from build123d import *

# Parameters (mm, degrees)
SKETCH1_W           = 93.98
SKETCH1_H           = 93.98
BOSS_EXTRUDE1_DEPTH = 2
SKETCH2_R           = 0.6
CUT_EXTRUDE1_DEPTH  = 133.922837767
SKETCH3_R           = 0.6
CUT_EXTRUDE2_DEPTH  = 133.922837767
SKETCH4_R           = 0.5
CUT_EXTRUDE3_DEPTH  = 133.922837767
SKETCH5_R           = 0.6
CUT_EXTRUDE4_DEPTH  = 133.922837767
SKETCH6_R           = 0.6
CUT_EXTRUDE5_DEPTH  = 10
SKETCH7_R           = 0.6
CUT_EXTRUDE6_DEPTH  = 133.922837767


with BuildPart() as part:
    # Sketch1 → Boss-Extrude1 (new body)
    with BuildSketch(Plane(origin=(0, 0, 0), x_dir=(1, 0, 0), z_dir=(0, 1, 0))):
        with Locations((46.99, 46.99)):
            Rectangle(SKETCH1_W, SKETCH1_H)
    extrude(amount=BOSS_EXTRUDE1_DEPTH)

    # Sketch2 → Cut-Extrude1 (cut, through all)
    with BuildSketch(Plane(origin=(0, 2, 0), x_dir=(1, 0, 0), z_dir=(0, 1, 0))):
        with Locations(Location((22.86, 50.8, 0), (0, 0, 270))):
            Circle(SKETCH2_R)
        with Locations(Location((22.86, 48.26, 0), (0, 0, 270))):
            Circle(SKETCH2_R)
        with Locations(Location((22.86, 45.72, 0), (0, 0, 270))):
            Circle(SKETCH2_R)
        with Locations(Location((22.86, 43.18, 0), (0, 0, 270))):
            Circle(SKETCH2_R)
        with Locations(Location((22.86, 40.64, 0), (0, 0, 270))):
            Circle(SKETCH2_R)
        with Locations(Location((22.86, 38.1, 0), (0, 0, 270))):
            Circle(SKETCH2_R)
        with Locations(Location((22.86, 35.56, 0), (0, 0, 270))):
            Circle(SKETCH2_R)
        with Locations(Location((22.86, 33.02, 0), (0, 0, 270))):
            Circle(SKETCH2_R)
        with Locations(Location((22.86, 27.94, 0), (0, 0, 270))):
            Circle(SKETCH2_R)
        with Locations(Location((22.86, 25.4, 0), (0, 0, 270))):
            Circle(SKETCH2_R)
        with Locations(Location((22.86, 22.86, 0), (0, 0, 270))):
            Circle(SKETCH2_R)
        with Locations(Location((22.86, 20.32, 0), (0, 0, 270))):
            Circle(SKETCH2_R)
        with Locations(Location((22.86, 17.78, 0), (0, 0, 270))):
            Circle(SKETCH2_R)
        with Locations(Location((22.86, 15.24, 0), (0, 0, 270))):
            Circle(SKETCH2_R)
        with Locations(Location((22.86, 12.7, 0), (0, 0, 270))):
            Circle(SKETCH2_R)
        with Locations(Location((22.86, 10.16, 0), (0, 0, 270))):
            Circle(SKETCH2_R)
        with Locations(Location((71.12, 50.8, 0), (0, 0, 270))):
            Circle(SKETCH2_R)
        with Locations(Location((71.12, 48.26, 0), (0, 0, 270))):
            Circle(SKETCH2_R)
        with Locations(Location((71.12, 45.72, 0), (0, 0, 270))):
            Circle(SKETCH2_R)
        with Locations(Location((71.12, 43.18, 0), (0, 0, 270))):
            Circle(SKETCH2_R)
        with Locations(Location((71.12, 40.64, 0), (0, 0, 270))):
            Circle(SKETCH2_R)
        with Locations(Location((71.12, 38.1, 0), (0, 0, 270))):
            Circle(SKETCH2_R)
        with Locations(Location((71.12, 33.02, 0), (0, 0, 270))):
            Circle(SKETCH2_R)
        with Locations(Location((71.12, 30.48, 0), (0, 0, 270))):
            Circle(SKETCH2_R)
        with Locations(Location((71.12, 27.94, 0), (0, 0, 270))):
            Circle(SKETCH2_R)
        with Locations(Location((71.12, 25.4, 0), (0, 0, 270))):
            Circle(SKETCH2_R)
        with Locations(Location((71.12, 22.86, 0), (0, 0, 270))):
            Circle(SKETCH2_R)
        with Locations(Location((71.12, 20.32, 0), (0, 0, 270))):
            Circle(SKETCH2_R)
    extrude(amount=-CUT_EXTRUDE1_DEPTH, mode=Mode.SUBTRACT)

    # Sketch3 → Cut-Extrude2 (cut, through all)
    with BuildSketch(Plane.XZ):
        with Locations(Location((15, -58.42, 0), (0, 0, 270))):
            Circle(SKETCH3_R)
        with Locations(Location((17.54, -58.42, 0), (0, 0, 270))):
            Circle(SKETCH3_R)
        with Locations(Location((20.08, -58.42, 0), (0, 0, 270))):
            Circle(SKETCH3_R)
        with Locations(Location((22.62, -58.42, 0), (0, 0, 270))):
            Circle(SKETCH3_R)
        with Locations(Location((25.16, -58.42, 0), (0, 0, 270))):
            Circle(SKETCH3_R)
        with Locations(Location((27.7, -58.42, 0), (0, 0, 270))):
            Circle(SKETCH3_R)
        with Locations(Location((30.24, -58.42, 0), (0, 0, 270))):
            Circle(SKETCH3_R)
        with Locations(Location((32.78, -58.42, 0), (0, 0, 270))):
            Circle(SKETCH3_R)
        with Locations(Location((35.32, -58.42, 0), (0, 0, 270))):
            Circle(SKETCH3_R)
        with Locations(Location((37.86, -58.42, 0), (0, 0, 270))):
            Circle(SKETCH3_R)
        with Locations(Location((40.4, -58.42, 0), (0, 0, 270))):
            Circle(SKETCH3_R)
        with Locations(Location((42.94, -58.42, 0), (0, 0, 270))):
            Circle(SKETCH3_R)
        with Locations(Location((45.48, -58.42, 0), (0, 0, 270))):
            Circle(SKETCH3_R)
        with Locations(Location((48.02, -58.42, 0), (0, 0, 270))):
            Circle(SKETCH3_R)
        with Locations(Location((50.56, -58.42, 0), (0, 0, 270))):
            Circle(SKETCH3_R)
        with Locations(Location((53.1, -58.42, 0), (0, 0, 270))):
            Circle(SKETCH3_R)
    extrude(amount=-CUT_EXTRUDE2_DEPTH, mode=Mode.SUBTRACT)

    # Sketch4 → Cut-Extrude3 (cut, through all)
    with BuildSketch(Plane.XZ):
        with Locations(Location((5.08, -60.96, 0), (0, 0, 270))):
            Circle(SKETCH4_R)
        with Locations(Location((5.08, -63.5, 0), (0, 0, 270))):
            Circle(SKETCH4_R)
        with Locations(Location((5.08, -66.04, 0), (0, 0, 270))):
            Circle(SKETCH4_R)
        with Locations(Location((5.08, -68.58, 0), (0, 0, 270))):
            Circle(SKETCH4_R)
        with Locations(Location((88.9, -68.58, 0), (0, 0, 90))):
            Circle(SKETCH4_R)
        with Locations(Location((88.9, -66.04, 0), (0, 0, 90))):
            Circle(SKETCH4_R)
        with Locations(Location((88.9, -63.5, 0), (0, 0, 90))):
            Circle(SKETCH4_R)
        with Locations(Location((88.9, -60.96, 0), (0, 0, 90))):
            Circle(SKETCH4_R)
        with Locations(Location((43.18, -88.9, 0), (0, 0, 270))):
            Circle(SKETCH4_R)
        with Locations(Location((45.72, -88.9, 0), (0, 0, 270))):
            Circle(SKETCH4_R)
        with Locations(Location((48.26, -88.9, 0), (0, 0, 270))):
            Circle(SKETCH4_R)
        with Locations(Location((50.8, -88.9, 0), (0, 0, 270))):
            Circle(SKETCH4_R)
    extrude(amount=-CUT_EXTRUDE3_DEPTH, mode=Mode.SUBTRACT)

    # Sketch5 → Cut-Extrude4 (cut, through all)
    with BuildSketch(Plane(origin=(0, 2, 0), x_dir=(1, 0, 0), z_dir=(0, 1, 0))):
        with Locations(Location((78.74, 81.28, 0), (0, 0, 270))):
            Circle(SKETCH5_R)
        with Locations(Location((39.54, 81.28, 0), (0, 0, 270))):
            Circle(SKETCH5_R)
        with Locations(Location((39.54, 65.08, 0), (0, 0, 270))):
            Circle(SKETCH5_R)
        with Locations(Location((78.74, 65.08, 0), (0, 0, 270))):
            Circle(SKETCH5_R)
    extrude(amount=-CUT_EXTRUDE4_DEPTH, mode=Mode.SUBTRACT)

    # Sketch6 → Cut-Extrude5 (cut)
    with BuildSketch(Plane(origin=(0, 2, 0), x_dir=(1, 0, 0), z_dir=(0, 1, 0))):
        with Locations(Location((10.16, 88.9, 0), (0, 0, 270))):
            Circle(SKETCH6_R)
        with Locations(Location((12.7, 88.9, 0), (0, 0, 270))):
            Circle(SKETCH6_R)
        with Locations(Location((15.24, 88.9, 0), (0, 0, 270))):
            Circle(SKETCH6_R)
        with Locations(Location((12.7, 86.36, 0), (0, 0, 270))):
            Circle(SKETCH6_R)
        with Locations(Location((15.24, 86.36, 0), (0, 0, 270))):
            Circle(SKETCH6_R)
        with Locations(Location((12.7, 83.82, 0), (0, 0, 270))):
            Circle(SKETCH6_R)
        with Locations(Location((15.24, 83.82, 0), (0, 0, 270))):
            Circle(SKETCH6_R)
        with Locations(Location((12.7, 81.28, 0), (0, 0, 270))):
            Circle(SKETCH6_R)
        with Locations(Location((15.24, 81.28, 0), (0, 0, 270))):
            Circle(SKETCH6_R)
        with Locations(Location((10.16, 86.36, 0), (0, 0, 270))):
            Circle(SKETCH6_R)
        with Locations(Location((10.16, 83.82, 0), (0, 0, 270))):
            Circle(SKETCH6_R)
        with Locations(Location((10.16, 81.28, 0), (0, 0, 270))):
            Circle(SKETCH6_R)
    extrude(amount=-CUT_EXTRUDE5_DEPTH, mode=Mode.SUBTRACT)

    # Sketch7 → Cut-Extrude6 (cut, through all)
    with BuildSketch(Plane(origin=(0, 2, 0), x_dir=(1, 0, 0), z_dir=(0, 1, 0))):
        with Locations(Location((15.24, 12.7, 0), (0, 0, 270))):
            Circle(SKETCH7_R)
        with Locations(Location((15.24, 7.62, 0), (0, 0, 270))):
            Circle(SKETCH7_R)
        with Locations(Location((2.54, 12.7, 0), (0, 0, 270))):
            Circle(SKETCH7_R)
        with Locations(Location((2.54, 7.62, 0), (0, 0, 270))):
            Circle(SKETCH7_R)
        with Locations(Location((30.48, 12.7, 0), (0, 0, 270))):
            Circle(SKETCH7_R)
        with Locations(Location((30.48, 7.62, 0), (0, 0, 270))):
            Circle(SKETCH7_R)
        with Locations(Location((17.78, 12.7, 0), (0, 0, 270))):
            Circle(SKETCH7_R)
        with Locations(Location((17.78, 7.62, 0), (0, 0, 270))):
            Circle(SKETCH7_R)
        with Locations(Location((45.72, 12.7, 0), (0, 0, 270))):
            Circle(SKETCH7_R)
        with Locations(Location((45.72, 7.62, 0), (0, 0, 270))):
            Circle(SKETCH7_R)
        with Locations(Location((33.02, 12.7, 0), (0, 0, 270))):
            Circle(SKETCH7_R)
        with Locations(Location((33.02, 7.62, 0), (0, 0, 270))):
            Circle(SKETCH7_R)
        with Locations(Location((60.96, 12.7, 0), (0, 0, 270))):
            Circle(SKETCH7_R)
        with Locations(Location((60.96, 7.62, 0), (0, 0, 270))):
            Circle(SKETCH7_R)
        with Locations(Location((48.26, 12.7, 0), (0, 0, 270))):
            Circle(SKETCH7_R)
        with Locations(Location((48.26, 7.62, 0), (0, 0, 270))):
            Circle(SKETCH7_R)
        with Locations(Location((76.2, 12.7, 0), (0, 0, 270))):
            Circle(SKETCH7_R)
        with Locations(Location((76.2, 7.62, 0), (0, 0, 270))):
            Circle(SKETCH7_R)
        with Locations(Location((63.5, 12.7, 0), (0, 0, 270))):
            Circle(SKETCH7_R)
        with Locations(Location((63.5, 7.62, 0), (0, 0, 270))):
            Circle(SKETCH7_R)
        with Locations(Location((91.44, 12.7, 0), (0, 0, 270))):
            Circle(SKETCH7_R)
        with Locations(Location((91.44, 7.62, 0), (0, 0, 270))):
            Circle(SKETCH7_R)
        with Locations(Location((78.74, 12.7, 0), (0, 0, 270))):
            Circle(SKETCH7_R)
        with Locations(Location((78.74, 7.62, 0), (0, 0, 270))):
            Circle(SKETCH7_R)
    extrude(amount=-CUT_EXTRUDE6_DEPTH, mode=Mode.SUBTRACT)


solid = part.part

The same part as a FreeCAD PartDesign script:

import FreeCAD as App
import Part
import Sketcher

V = App.Vector

doc = App.newDocument("Part")
body = doc.addObject("PartDesign::Body", "Body")

# Sketch on XZ plane
sketch1 = body.newObject("Sketcher::SketchObject", "Sketch")
sketch1.AttachmentSupport = (doc.getObject("XZ_Plane"), [""])
sketch1.MapMode = "FlatFace"
sketch1.addGeometry(Part.LineSegment(V(0, -93.98, 0), V(0, 0, 0)), False)
sketch1.addGeometry(Part.LineSegment(V(0, 0, 0), V(93.98, 0, 0)), False)
sketch1.addGeometry(Part.LineSegment(V(93.98, 0, 0), V(93.98, -93.98, 0)), False)
sketch1.addGeometry(Part.LineSegment(V(93.98, -93.98, 0), V(0, -93.98, 0)), False)
sketch1.addConstraint(Sketcher.Constraint("Coincident", 0, 2, 1, 1))
sketch1.addConstraint(Sketcher.Constraint("Coincident", 1, 2, 2, 1))
sketch1.addConstraint(Sketcher.Constraint("Coincident", 2, 2, 3, 1))
sketch1.addConstraint(Sketcher.Constraint("Coincident", 3, 2, 0, 1))
sketch1.addConstraint(Sketcher.Constraint("Vertical", 0))
sketch1.addConstraint(Sketcher.Constraint("Horizontal", 1))
sketch1.addConstraint(Sketcher.Constraint("Vertical", 2))
sketch1.addConstraint(Sketcher.Constraint("Horizontal", 3))
sketch1.addConstraint(Sketcher.Constraint("Coincident", 0, 2, -1, 1))
sketch1.addConstraint(Sketcher.Constraint("Equal", 3, 0))
sketch1.addConstraint(Sketcher.Constraint("DistanceX", 1, 1, 1, 2, 93.98))
pad1 = body.newObject("PartDesign::Pad", "Pad")
pad1.Profile = sketch1
pad1.Length = 2
pad1.Reversed = True

# Sketch on XZ plane
sketch2 = body.newObject("Sketcher::SketchObject", "Sketch001")
sketch2.AttachmentSupport = (doc.getObject("XZ_Plane"), [""])
sketch2.MapMode = "FlatFace"
sketch2.AttachmentOffset = App.Placement(V(0, 0, -2), App.Rotation())
sketch2.addGeometry(Part.Circle(V(22.86, -50.8, 0), V(0, 0, 1), 0.6), False)
sketch2.addGeometry(Part.Circle(V(22.86, -48.26, 0), V(0, 0, 1), 0.6), False)
sketch2.addGeometry(Part.Circle(V(22.86, -45.72, 0), V(0, 0, 1), 0.6), False)
sketch2.addGeometry(Part.Circle(V(22.86, -43.18, 0), V(0, 0, 1), 0.6), False)
sketch2.addGeometry(Part.Circle(V(22.86, -40.64, 0), V(0, 0, 1), 0.6), False)
sketch2.addGeometry(Part.Circle(V(22.86, -38.1, 0), V(0, 0, 1), 0.6), False)
sketch2.addGeometry(Part.Circle(V(22.86, -35.56, 0), V(0, 0, 1), 0.6), False)
sketch2.addGeometry(Part.Circle(V(22.86, -33.02, 0), V(0, 0, 1), 0.6), False)
sketch2.addGeometry(Part.Circle(V(22.86, -27.94, 0), V(0, 0, 1), 0.6), False)
sketch2.addGeometry(Part.Circle(V(22.86, -25.4, 0), V(0, 0, 1), 0.6), False)
sketch2.addGeometry(Part.Circle(V(22.86, -22.86, 0), V(0, 0, 1), 0.6), False)
sketch2.addGeometry(Part.Circle(V(22.86, -20.32, 0), V(0, 0, 1), 0.6), False)
sketch2.addGeometry(Part.Circle(V(22.86, -17.78, 0), V(0, 0, 1), 0.6), False)
sketch2.addGeometry(Part.Circle(V(22.86, -15.24, 0), V(0, 0, 1), 0.6), False)
sketch2.addGeometry(Part.Circle(V(22.86, -12.7, 0), V(0, 0, 1), 0.6), False)
sketch2.addGeometry(Part.Circle(V(22.86, -10.16, 0), V(0, 0, 1), 0.6), False)
sketch2.addGeometry(Part.Circle(V(71.12, -50.8, 0), V(0, 0, 1), 0.6), False)
sketch2.addGeometry(Part.Circle(V(71.12, -48.26, 0), V(0, 0, 1), 0.6), False)
sketch2.addGeometry(Part.Circle(V(71.12, -45.72, 0), V(0, 0, 1), 0.6), False)
sketch2.addGeometry(Part.Circle(V(71.12, -43.18, 0), V(0, 0, 1), 0.6), False)
sketch2.addGeometry(Part.Circle(V(71.12, -40.64, 0), V(0, 0, 1), 0.6), False)
sketch2.addGeometry(Part.Circle(V(71.12, -38.1, 0), V(0, 0, 1), 0.6), False)
sketch2.addGeometry(Part.Circle(V(71.12, -33.02, 0), V(0, 0, 1), 0.6), False)
sketch2.addGeometry(Part.Circle(V(71.12, -30.48, 0), V(0, 0, 1), 0.6), False)
sketch2.addGeometry(Part.Circle(V(71.12, -27.94, 0), V(0, 0, 1), 0.6), False)
sketch2.addGeometry(Part.Circle(V(71.12, -25.4, 0), V(0, 0, 1), 0.6), False)
sketch2.addGeometry(Part.Circle(V(71.12, -22.86, 0), V(0, 0, 1), 0.6), False)
sketch2.addGeometry(Part.Circle(V(71.12, -20.32, 0), V(0, 0, 1), 0.6), False)
sketch2.addConstraint(Sketcher.Constraint("Equal", 0, 1))
sketch2.addConstraint(Sketcher.Constraint("Equal", 1, 2))
sketch2.addConstraint(Sketcher.Constraint("Equal", 2, 3))
sketch2.addConstraint(Sketcher.Constraint("Equal", 3, 4))
sketch2.addConstraint(Sketcher.Constraint("Equal", 4, 5))
sketch2.addConstraint(Sketcher.Constraint("Equal", 5, 6))
sketch2.addConstraint(Sketcher.Constraint("Equal", 6, 7))
sketch2.addConstraint(Sketcher.Constraint("Equal", 7, 8))
sketch2.addConstraint(Sketcher.Constraint("Equal", 8, 9))
sketch2.addConstraint(Sketcher.Constraint("Equal", 9, 10))
sketch2.addConstraint(Sketcher.Constraint("Equal", 10, 11))
sketch2.addConstraint(Sketcher.Constraint("Equal", 11, 12))
sketch2.addConstraint(Sketcher.Constraint("Equal", 12, 13))
sketch2.addConstraint(Sketcher.Constraint("Equal", 13, 14))
sketch2.addConstraint(Sketcher.Constraint("Equal", 14, 15))
sketch2.addConstraint(Sketcher.Constraint("Equal", 15, 16))
sketch2.addConstraint(Sketcher.Constraint("Equal", 16, 17))
sketch2.addConstraint(Sketcher.Constraint("Equal", 17, 18))
sketch2.addConstraint(Sketcher.Constraint("Equal", 18, 19))
sketch2.addConstraint(Sketcher.Constraint("Equal", 19, 20))
sketch2.addConstraint(Sketcher.Constraint("Equal", 20, 21))
sketch2.addConstraint(Sketcher.Constraint("Equal", 21, 22))
sketch2.addConstraint(Sketcher.Constraint("Equal", 22, 23))
sketch2.addConstraint(Sketcher.Constraint("Equal", 23, 24))
sketch2.addConstraint(Sketcher.Constraint("Equal", 24, 25))
sketch2.addConstraint(Sketcher.Constraint("Equal", 25, 26))
sketch2.addConstraint(Sketcher.Constraint("Equal", 26, 27))
sketch2.addConstraint(Sketcher.Constraint("Horizontal", 0, 3, 16, 3))
sketch2.addConstraint(Sketcher.Constraint("Horizontal", 1, 3, 17, 3))
sketch2.addConstraint(Sketcher.Constraint("Horizontal", 2, 3, 18, 3))
sketch2.addConstraint(Sketcher.Constraint("Horizontal", 3, 3, 19, 3))
sketch2.addConstraint(Sketcher.Constraint("Horizontal", 4, 3, 20, 3))
sketch2.addConstraint(Sketcher.Constraint("Horizontal", 5, 3, 21, 3))
sketch2.addConstraint(Sketcher.Constraint("Horizontal", 7, 3, 22, 3))
sketch2.addConstraint(Sketcher.Constraint("Horizontal", 8, 3, 24, 3))
sketch2.addConstraint(Sketcher.Constraint("Horizontal", 9, 3, 25, 3))
sketch2.addConstraint(Sketcher.Constraint("Horizontal", 10, 3, 26, 3))
sketch2.addConstraint(Sketcher.Constraint("Horizontal", 11, 3, 27, 3))
sketch2.addConstraint(Sketcher.Constraint("Vertical", 0, 3, 1, 3))
sketch2.addConstraint(Sketcher.Constraint("Vertical", 1, 3, 2, 3))
sketch2.addConstraint(Sketcher.Constraint("Vertical", 2, 3, 3, 3))
sketch2.addConstraint(Sketcher.Constraint("Vertical", 3, 3, 4, 3))
sketch2.addConstraint(Sketcher.Constraint("Vertical", 4, 3, 5, 3))
sketch2.addConstraint(Sketcher.Constraint("Vertical", 5, 3, 6, 3))
sketch2.addConstraint(Sketcher.Constraint("Vertical", 6, 3, 7, 3))
sketch2.addConstraint(Sketcher.Constraint("Vertical", 7, 3, 8, 3))
sketch2.addConstraint(Sketcher.Constraint("Vertical", 8, 3, 9, 3))
sketch2.addConstraint(Sketcher.Constraint("Vertical", 9, 3, 10, 3))
sketch2.addConstraint(Sketcher.Constraint("Vertical", 10, 3, 11, 3))
sketch2.addConstraint(Sketcher.Constraint("Vertical", 11, 3, 12, 3))
sketch2.addConstraint(Sketcher.Constraint("Vertical", 12, 3, 13, 3))
sketch2.addConstraint(Sketcher.Constraint("Vertical", 13, 3, 14, 3))
sketch2.addConstraint(Sketcher.Constraint("Vertical", 14, 3, 15, 3))
sketch2.addConstraint(Sketcher.Constraint("Vertical", 16, 3, 17, 3))
sketch2.addConstraint(Sketcher.Constraint("Vertical", 17, 3, 18, 3))
sketch2.addConstraint(Sketcher.Constraint("Vertical", 18, 3, 19, 3))
sketch2.addConstraint(Sketcher.Constraint("Vertical", 19, 3, 20, 3))
sketch2.addConstraint(Sketcher.Constraint("Vertical", 20, 3, 21, 3))
sketch2.addConstraint(Sketcher.Constraint("Vertical", 21, 3, 22, 3))
sketch2.addConstraint(Sketcher.Constraint("Vertical", 22, 3, 23, 3))
sketch2.addConstraint(Sketcher.Constraint("Vertical", 23, 3, 24, 3))
sketch2.addConstraint(Sketcher.Constraint("Vertical", 24, 3, 25, 3))
sketch2.addConstraint(Sketcher.Constraint("Vertical", 25, 3, 26, 3))
sketch2.addConstraint(Sketcher.Constraint("Vertical", 26, 3, 27, 3))
sketch2.addConstraint(Sketcher.Constraint("Diameter", 0, 1.2))
sketch2.addConstraint(Sketcher.Constraint("DistanceY", 0, 3, -1, 1, 50.8))
sketch2.addConstraint(Sketcher.Constraint("DistanceY", 5, 3, -1, 1, 38.1))
sketch2.addConstraint(Sketcher.Constraint("DistanceY", 9, 3, -1, 1, 25.4))
sketch2.addConstraint(Sketcher.Constraint("DistanceY", 14, 3, -1, 1, 12.7))
sketch2.addConstraint(Sketcher.Constraint("DistanceY", 1, 3, 6, 3, 12.7))
sketch2.addConstraint(Sketcher.Constraint("DistanceY", 2, 3, 7, 3, 12.7))
sketch2.addConstraint(Sketcher.Constraint("DistanceY", 4, 3, 8, 3, 12.7))
sketch2.addConstraint(Sketcher.Constraint("DistanceY", 6, 3, 10, 3, 12.7))
sketch2.addConstraint(Sketcher.Constraint("DistanceY", 7, 3, 11, 3, 12.7))
sketch2.addConstraint(Sketcher.Constraint("DistanceY", 8, 3, 13, 3, 12.7))
sketch2.addConstraint(Sketcher.Constraint("DistanceY", 10, 3, 15, 3, 12.7))
sketch2.addConstraint(Sketcher.Constraint("DistanceY", 19, 3, 23, 3, 12.7))
sketch2.addConstraint(Sketcher.Constraint("DistanceX", -1, 1, 0, 3, 22.86))
sketch2.addConstraint(Sketcher.Constraint("DistanceY", 1, 3, -1, 1, 48.26))
sketch2.addConstraint(Sketcher.Constraint("DistanceY", 2, 3, -1, 1, 45.72))
sketch2.addConstraint(Sketcher.Constraint("DistanceY", 3, 3, -1, 1, 43.18))
sketch2.addConstraint(Sketcher.Constraint("DistanceY", 4, 3, -1, 1, 40.64))
sketch2.addConstraint(Sketcher.Constraint("DistanceY", 12, 3, -1, 1, 17.78))
sketch2.addConstraint(Sketcher.Constraint("DistanceX", -1, 1, 16, 3, 71.12))
pocket1 = body.newObject("PartDesign::Pocket", "Pocket")
pocket1.Profile = sketch2
pocket1.Type = "ThroughAll"
pocket1.Reversed = True

# Sketch on XZ plane
sketch3 = body.newObject("Sketcher::SketchObject", "Sketch002")
sketch3.AttachmentSupport = (doc.getObject("XZ_Plane"), [""])
sketch3.MapMode = "FlatFace"
sketch3.addGeometry(Part.Circle(V(15, -58.42, 0), V(0, 0, 1), 0.6), False)
sketch3.addGeometry(Part.Circle(V(17.54, -58.42, 0), V(0, 0, 1), 0.6), False)
sketch3.addGeometry(Part.Circle(V(20.08, -58.42, 0), V(0, 0, 1), 0.6), False)
sketch3.addGeometry(Part.Circle(V(22.62, -58.42, 0), V(0, 0, 1), 0.6), False)
sketch3.addGeometry(Part.Circle(V(25.16, -58.42, 0), V(0, 0, 1), 0.6), False)
sketch3.addGeometry(Part.Circle(V(27.7, -58.42, 0), V(0, 0, 1), 0.6), False)
sketch3.addGeometry(Part.Circle(V(30.24, -58.42, 0), V(0, 0, 1), 0.6), False)
sketch3.addGeometry(Part.Circle(V(32.78, -58.42, 0), V(0, 0, 1), 0.6), False)
sketch3.addGeometry(Part.Circle(V(35.32, -58.42, 0), V(0, 0, 1), 0.6), False)
sketch3.addGeometry(Part.Circle(V(37.86, -58.42, 0), V(0, 0, 1), 0.6), False)
sketch3.addGeometry(Part.Circle(V(40.4, -58.42, 0), V(0, 0, 1), 0.6), False)
sketch3.addGeometry(Part.Circle(V(42.94, -58.42, 0), V(0, 0, 1), 0.6), False)
sketch3.addGeometry(Part.Circle(V(45.48, -58.42, 0), V(0, 0, 1), 0.6), False)
sketch3.addGeometry(Part.Circle(V(48.02, -58.42, 0), V(0, 0, 1), 0.6), False)
sketch3.addGeometry(Part.Circle(V(50.56, -58.42, 0), V(0, 0, 1), 0.6), False)
sketch3.addGeometry(Part.Circle(V(53.1, -58.42, 0), V(0, 0, 1), 0.6), False)
sketch3.addConstraint(Sketcher.Constraint("Equal", 0, 1))
sketch3.addConstraint(Sketcher.Constraint("Equal", 1, 2))
sketch3.addConstraint(Sketcher.Constraint("Equal", 2, 3))
sketch3.addConstraint(Sketcher.Constraint("Equal", 3, 4))
sketch3.addConstraint(Sketcher.Constraint("Equal", 4, 5))
sketch3.addConstraint(Sketcher.Constraint("Equal", 5, 6))
sketch3.addConstraint(Sketcher.Constraint("Equal", 6, 7))
sketch3.addConstraint(Sketcher.Constraint("Equal", 7, 8))
sketch3.addConstraint(Sketcher.Constraint("Equal", 8, 9))
sketch3.addConstraint(Sketcher.Constraint("Equal", 9, 10))
sketch3.addConstraint(Sketcher.Constraint("Equal", 10, 11))
sketch3.addConstraint(Sketcher.Constraint("Equal", 11, 12))
sketch3.addConstraint(Sketcher.Constraint("Equal", 12, 13))
sketch3.addConstraint(Sketcher.Constraint("Equal", 13, 14))
sketch3.addConstraint(Sketcher.Constraint("Equal", 14, 15))
sketch3.addConstraint(Sketcher.Constraint("Horizontal", 0, 3, 1, 3))
sketch3.addConstraint(Sketcher.Constraint("Horizontal", 1, 3, 2, 3))
sketch3.addConstraint(Sketcher.Constraint("Horizontal", 2, 3, 3, 3))
sketch3.addConstraint(Sketcher.Constraint("Horizontal", 3, 3, 4, 3))
sketch3.addConstraint(Sketcher.Constraint("Horizontal", 4, 3, 5, 3))
sketch3.addConstraint(Sketcher.Constraint("Horizontal", 5, 3, 6, 3))
sketch3.addConstraint(Sketcher.Constraint("Horizontal", 6, 3, 7, 3))
sketch3.addConstraint(Sketcher.Constraint("Horizontal", 7, 3, 8, 3))
sketch3.addConstraint(Sketcher.Constraint("Horizontal", 8, 3, 9, 3))
sketch3.addConstraint(Sketcher.Constraint("Horizontal", 9, 3, 10, 3))
sketch3.addConstraint(Sketcher.Constraint("Horizontal", 10, 3, 11, 3))
sketch3.addConstraint(Sketcher.Constraint("Horizontal", 11, 3, 12, 3))
sketch3.addConstraint(Sketcher.Constraint("Horizontal", 12, 3, 13, 3))
sketch3.addConstraint(Sketcher.Constraint("Horizontal", 13, 3, 14, 3))
sketch3.addConstraint(Sketcher.Constraint("Horizontal", 14, 3, 15, 3))
sketch3.addConstraint(Sketcher.Constraint("Diameter", 0, 1.2))
sketch3.addConstraint(Sketcher.Constraint("DistanceX", -1, 1, 0, 3, 15.0))
sketch3.addConstraint(Sketcher.Constraint("DistanceX", -1, 1, 5, 3, 27.7))
sketch3.addConstraint(Sketcher.Constraint("DistanceX", -1, 1, 10, 3, 40.4))
sketch3.addConstraint(Sketcher.Constraint("DistanceX", -1, 1, 15, 3, 53.1))
sketch3.addConstraint(Sketcher.Constraint("DistanceX", 1, 3, 6, 3, 12.7))
sketch3.addConstraint(Sketcher.Constraint("DistanceX", 2, 3, 7, 3, 12.7))
sketch3.addConstraint(Sketcher.Constraint("DistanceX", 3, 3, 8, 3, 12.7))
sketch3.addConstraint(Sketcher.Constraint("DistanceX", 4, 3, 9, 3, 12.7))
sketch3.addConstraint(Sketcher.Constraint("DistanceX", 6, 3, 11, 3, 12.7))
sketch3.addConstraint(Sketcher.Constraint("DistanceX", 7, 3, 12, 3, 12.7))
sketch3.addConstraint(Sketcher.Constraint("DistanceX", 8, 3, 13, 3, 12.7))
sketch3.addConstraint(Sketcher.Constraint("DistanceX", 9, 3, 14, 3, 12.7))
sketch3.addConstraint(Sketcher.Constraint("DistanceY", 0, 3, -1, 1, 58.42))
sketch3.addConstraint(Sketcher.Constraint("DistanceX", -1, 1, 1, 3, 17.54))
sketch3.addConstraint(Sketcher.Constraint("DistanceX", -1, 1, 2, 3, 20.08))
sketch3.addConstraint(Sketcher.Constraint("DistanceX", -1, 1, 3, 3, 22.62))
sketch3.addConstraint(Sketcher.Constraint("DistanceX", -1, 1, 4, 3, 25.16))
pocket2 = body.newObject("PartDesign::Pocket", "Pocket001")
pocket2.Profile = sketch3
pocket2.Type = "ThroughAll"

# Sketch on XZ plane
sketch4 = body.newObject("Sketcher::SketchObject", "Sketch003")
sketch4.AttachmentSupport = (doc.getObject("XZ_Plane"), [""])
sketch4.MapMode = "FlatFace"
sketch4.addGeometry(Part.Circle(V(5.08, -60.96, 0), V(0, 0, 1), 0.5), False)
sketch4.addGeometry(Part.Circle(V(5.08, -63.5, 0), V(0, 0, 1), 0.5), False)
sketch4.addGeometry(Part.Circle(V(5.08, -66.04, 0), V(0, 0, 1), 0.5), False)
sketch4.addGeometry(Part.Circle(V(5.08, -68.58, 0), V(0, 0, 1), 0.5), False)
sketch4.addGeometry(Part.Circle(V(88.9, -68.58, 0), V(0, 0, 1), 0.5), False)
sketch4.addGeometry(Part.Circle(V(88.9, -66.04, 0), V(0, 0, 1), 0.5), False)
sketch4.addGeometry(Part.Circle(V(88.9, -63.5, 0), V(0, 0, 1), 0.5), False)
sketch4.addGeometry(Part.Circle(V(88.9, -60.96, 0), V(0, 0, 1), 0.5), False)
sketch4.addGeometry(Part.Circle(V(43.18, -88.9, 0), V(0, 0, 1), 0.5), False)
sketch4.addGeometry(Part.Circle(V(45.72, -88.9, 0), V(0, 0, 1), 0.5), False)
sketch4.addGeometry(Part.Circle(V(48.26, -88.9, 0), V(0, 0, 1), 0.5), False)
sketch4.addGeometry(Part.Circle(V(50.8, -88.9, 0), V(0, 0, 1), 0.5), False)
sketch4.addConstraint(Sketcher.Constraint("Equal", 0, 1))
sketch4.addConstraint(Sketcher.Constraint("Equal", 1, 2))
sketch4.addConstraint(Sketcher.Constraint("Equal", 2, 3))
sketch4.addConstraint(Sketcher.Constraint("Equal", 3, 4))
sketch4.addConstraint(Sketcher.Constraint("Equal", 4, 5))
sketch4.addConstraint(Sketcher.Constraint("Equal", 5, 6))
sketch4.addConstraint(Sketcher.Constraint("Equal", 6, 7))
sketch4.addConstraint(Sketcher.Constraint("Equal", 7, 8))
sketch4.addConstraint(Sketcher.Constraint("Equal", 8, 9))
sketch4.addConstraint(Sketcher.Constraint("Equal", 9, 10))
sketch4.addConstraint(Sketcher.Constraint("Equal", 10, 11))
sketch4.addConstraint(Sketcher.Constraint("Horizontal", 3, 3, 4, 3))
sketch4.addConstraint(Sketcher.Constraint("Horizontal", 2, 3, 5, 3))
sketch4.addConstraint(Sketcher.Constraint("Horizontal", 1, 3, 6, 3))
sketch4.addConstraint(Sketcher.Constraint("Horizontal", 0, 3, 7, 3))
sketch4.addConstraint(Sketcher.Constraint("Horizontal", 8, 3, 9, 3))
sketch4.addConstraint(Sketcher.Constraint("Horizontal", 9, 3, 10, 3))
sketch4.addConstraint(Sketcher.Constraint("Horizontal", 10, 3, 11, 3))
sketch4.addConstraint(Sketcher.Constraint("Vertical", 0, 3, 1, 3))
sketch4.addConstraint(Sketcher.Constraint("Vertical", 1, 3, 2, 3))
sketch4.addConstraint(Sketcher.Constraint("Vertical", 2, 3, 3, 3))
sketch4.addConstraint(Sketcher.Constraint("Vertical", 4, 3, 5, 3))
sketch4.addConstraint(Sketcher.Constraint("Vertical", 5, 3, 6, 3))
sketch4.addConstraint(Sketcher.Constraint("Vertical", 6, 3, 7, 3))
sketch4.addConstraint(Sketcher.Constraint("Diameter", 0, 1.0))
sketch4.addConstraint(Sketcher.Constraint("DistanceY", 1, 3, -1, 1, 63.5))
sketch4.addConstraint(Sketcher.Constraint("DistanceX", -1, 1, 4, 3, 88.9))
sketch4.addConstraint(Sketcher.Constraint("DistanceY", 8, 3, -1, 1, 88.9))
sketch4.addConstraint(Sketcher.Constraint("DistanceX", -1, 1, 11, 3, 50.8))
sketch4.addConstraint(Sketcher.Constraint("DistanceX", 3, 3, 8, 3, 38.1))
sketch4.addConstraint(Sketcher.Constraint("DistanceX", -1, 1, 0, 3, 5.08))
sketch4.addConstraint(Sketcher.Constraint("DistanceY", 0, 3, -1, 1, 60.96))
sketch4.addConstraint(Sketcher.Constraint("DistanceY", 2, 3, -1, 1, 66.04))
sketch4.addConstraint(Sketcher.Constraint("DistanceY", 3, 3, -1, 1, 68.58))
sketch4.addConstraint(Sketcher.Constraint("DistanceX", -1, 1, 9, 3, 45.72))
sketch4.addConstraint(Sketcher.Constraint("DistanceX", -1, 1, 10, 3, 48.26))
pocket3 = body.newObject("PartDesign::Pocket", "Pocket002")
pocket3.Profile = sketch4
pocket3.Type = "ThroughAll"

# Sketch on XZ plane
sketch5 = body.newObject("Sketcher::SketchObject", "Sketch004")
sketch5.AttachmentSupport = (doc.getObject("XZ_Plane"), [""])
sketch5.MapMode = "FlatFace"
sketch5.AttachmentOffset = App.Placement(V(0, 0, -2), App.Rotation())
sketch5.addGeometry(Part.Circle(V(78.74, -81.28, 0), V(0, 0, 1), 0.6), False)
sketch5.addGeometry(Part.Circle(V(39.54, -81.28, 0), V(0, 0, 1), 0.6), False)
sketch5.addGeometry(Part.Circle(V(39.54, -65.08, 0), V(0, 0, 1), 0.6), False)
sketch5.addGeometry(Part.Circle(V(78.74, -65.08, 0), V(0, 0, 1), 0.6), False)
sketch5.addConstraint(Sketcher.Constraint("Equal", 0, 1))
sketch5.addConstraint(Sketcher.Constraint("Equal", 1, 2))
sketch5.addConstraint(Sketcher.Constraint("Equal", 2, 3))
sketch5.addConstraint(Sketcher.Constraint("Horizontal", 0, 3, 1, 3))
sketch5.addConstraint(Sketcher.Constraint("Horizontal", 2, 3, 3, 3))
sketch5.addConstraint(Sketcher.Constraint("Vertical", 1, 3, 2, 3))
sketch5.addConstraint(Sketcher.Constraint("Vertical", 0, 3, 3, 3))
sketch5.addConstraint(Sketcher.Constraint("Diameter", 0, 1.2))
sketch5.addConstraint(Sketcher.Constraint("DistanceX", 1, 3, 0, 3, 39.2))
sketch5.addConstraint(Sketcher.Constraint("DistanceY", 1, 3, 2, 3, 16.2))
sketch5.addConstraint(Sketcher.Constraint("DistanceX", -1, 1, 0, 3, 78.74))
sketch5.addConstraint(Sketcher.Constraint("DistanceY", 0, 3, -1, 1, 81.28))
pocket4 = body.newObject("PartDesign::Pocket", "Pocket003")
pocket4.Profile = sketch5
pocket4.Type = "ThroughAll"
pocket4.Reversed = True

# Sketch on XZ plane
sketch6 = body.newObject("Sketcher::SketchObject", "Sketch005")
sketch6.AttachmentSupport = (doc.getObject("XZ_Plane"), [""])
sketch6.MapMode = "FlatFace"
sketch6.AttachmentOffset = App.Placement(V(0, 0, -2), App.Rotation())
sketch6.addGeometry(Part.Circle(V(10.16, -88.9, 0), V(0, 0, 1), 0.6), False)
sketch6.addGeometry(Part.Circle(V(12.7, -88.9, 0), V(0, 0, 1), 0.6), False)
sketch6.addGeometry(Part.Circle(V(15.24, -88.9, 0), V(0, 0, 1), 0.6), False)
sketch6.addGeometry(Part.Circle(V(12.7, -86.36, 0), V(0, 0, 1), 0.6), False)
sketch6.addGeometry(Part.Circle(V(15.24, -86.36, 0), V(0, 0, 1), 0.6), False)
sketch6.addGeometry(Part.Circle(V(12.7, -83.82, 0), V(0, 0, 1), 0.6), False)
sketch6.addGeometry(Part.Circle(V(15.24, -83.82, 0), V(0, 0, 1), 0.6), False)
sketch6.addGeometry(Part.Circle(V(12.7, -81.28, 0), V(0, 0, 1), 0.6), False)
sketch6.addGeometry(Part.Circle(V(15.24, -81.28, 0), V(0, 0, 1), 0.6), False)
sketch6.addGeometry(Part.Circle(V(10.16, -86.36, 0), V(0, 0, 1), 0.6), False)
sketch6.addGeometry(Part.Circle(V(10.16, -83.82, 0), V(0, 0, 1), 0.6), False)
sketch6.addGeometry(Part.Circle(V(10.16, -81.28, 0), V(0, 0, 1), 0.6), False)
sketch6.addConstraint(Sketcher.Constraint("Equal", 0, 1))
sketch6.addConstraint(Sketcher.Constraint("Equal", 1, 2))
sketch6.addConstraint(Sketcher.Constraint("Equal", 2, 3))
sketch6.addConstraint(Sketcher.Constraint("Equal", 3, 4))
sketch6.addConstraint(Sketcher.Constraint("Equal", 4, 5))
sketch6.addConstraint(Sketcher.Constraint("Equal", 5, 6))
sketch6.addConstraint(Sketcher.Constraint("Equal", 6, 7))
sketch6.addConstraint(Sketcher.Constraint("Equal", 7, 8))
sketch6.addConstraint(Sketcher.Constraint("Equal", 8, 9))
sketch6.addConstraint(Sketcher.Constraint("Equal", 9, 10))
sketch6.addConstraint(Sketcher.Constraint("Equal", 10, 11))
sketch6.addConstraint(Sketcher.Constraint("Horizontal", 0, 3, 1, 3))
sketch6.addConstraint(Sketcher.Constraint("Horizontal", 1, 3, 2, 3))
sketch6.addConstraint(Sketcher.Constraint("Horizontal", 3, 3, 4, 3))
sketch6.addConstraint(Sketcher.Constraint("Horizontal", 5, 3, 6, 3))
sketch6.addConstraint(Sketcher.Constraint("Horizontal", 7, 3, 8, 3))
sketch6.addConstraint(Sketcher.Constraint("Horizontal", 4, 3, 9, 3))
sketch6.addConstraint(Sketcher.Constraint("Horizontal", 6, 3, 10, 3))
sketch6.addConstraint(Sketcher.Constraint("Horizontal", 8, 3, 11, 3))
sketch6.addConstraint(Sketcher.Constraint("Vertical", 1, 3, 3, 3))
sketch6.addConstraint(Sketcher.Constraint("Vertical", 2, 3, 4, 3))
sketch6.addConstraint(Sketcher.Constraint("Vertical", 3, 3, 5, 3))
sketch6.addConstraint(Sketcher.Constraint("Vertical", 4, 3, 6, 3))
sketch6.addConstraint(Sketcher.Constraint("Vertical", 5, 3, 7, 3))
sketch6.addConstraint(Sketcher.Constraint("Vertical", 6, 3, 8, 3))
sketch6.addConstraint(Sketcher.Constraint("Vertical", 0, 3, 9, 3))
sketch6.addConstraint(Sketcher.Constraint("Vertical", 9, 3, 10, 3))
sketch6.addConstraint(Sketcher.Constraint("Vertical", 10, 3, 11, 3))
sketch6.addConstraint(Sketcher.Constraint("Diameter", 0, 1.2))
sketch6.addConstraint(Sketcher.Constraint("DistanceY", 0, 3, -1, 1, 88.9))
sketch6.addConstraint(Sketcher.Constraint("DistanceX", -1, 1, 1, 3, 12.7))
sketch6.addConstraint(Sketcher.Constraint("DistanceX", -1, 1, 0, 3, 10.16))
sketch6.addConstraint(Sketcher.Constraint("DistanceX", -1, 1, 2, 3, 15.24))
sketch6.addConstraint(Sketcher.Constraint("DistanceY", 3, 3, -1, 1, 86.36))
sketch6.addConstraint(Sketcher.Constraint("DistanceY", 5, 3, -1, 1, 83.82))
sketch6.addConstraint(Sketcher.Constraint("DistanceY", 7, 3, -1, 1, 81.28))
pocket5 = body.newObject("PartDesign::Pocket", "Pocket004")
pocket5.Profile = sketch6
pocket5.Length = 10
pocket5.Reversed = True

# Sketch on XZ plane
sketch7 = body.newObject("Sketcher::SketchObject", "Sketch006")
sketch7.AttachmentSupport = (doc.getObject("XZ_Plane"), [""])
sketch7.MapMode = "FlatFace"
sketch7.AttachmentOffset = App.Placement(V(0, 0, -2), App.Rotation())
sketch7.addGeometry(Part.Circle(V(15.24, -12.7, 0), V(0, 0, 1), 0.6), False)
sketch7.addGeometry(Part.Circle(V(15.24, -7.62, 0), V(0, 0, 1), 0.6), False)
sketch7.addGeometry(Part.Circle(V(2.54, -12.7, 0), V(0, 0, 1), 0.6), False)
sketch7.addGeometry(Part.Circle(V(2.54, -7.62, 0), V(0, 0, 1), 0.6), False)
sketch7.addGeometry(Part.Circle(V(30.48, -12.7, 0), V(0, 0, 1), 0.6), False)
sketch7.addGeometry(Part.Circle(V(30.48, -7.62, 0), V(0, 0, 1), 0.6), False)
sketch7.addGeometry(Part.Circle(V(17.78, -12.7, 0), V(0, 0, 1), 0.6), False)
sketch7.addGeometry(Part.Circle(V(17.78, -7.62, 0), V(0, 0, 1), 0.6), False)
sketch7.addGeometry(Part.Circle(V(45.72, -12.7, 0), V(0, 0, 1), 0.6), False)
sketch7.addGeometry(Part.Circle(V(45.72, -7.62, 0), V(0, 0, 1), 0.6), False)
sketch7.addGeometry(Part.Circle(V(33.02, -12.7, 0), V(0, 0, 1), 0.6), False)
sketch7.addGeometry(Part.Circle(V(33.02, -7.62, 0), V(0, 0, 1), 0.6), False)
sketch7.addGeometry(Part.Circle(V(60.96, -12.7, 0), V(0, 0, 1), 0.6), False)
sketch7.addGeometry(Part.Circle(V(60.96, -7.62, 0), V(0, 0, 1), 0.6), False)
sketch7.addGeometry(Part.Circle(V(48.26, -12.7, 0), V(0, 0, 1), 0.6), False)
sketch7.addGeometry(Part.Circle(V(48.26, -7.62, 0), V(0, 0, 1), 0.6), False)
sketch7.addGeometry(Part.Circle(V(76.2, -12.7, 0), V(0, 0, 1), 0.6), False)
sketch7.addGeometry(Part.Circle(V(76.2, -7.62, 0), V(0, 0, 1), 0.6), False)
sketch7.addGeometry(Part.Circle(V(63.5, -12.7, 0), V(0, 0, 1), 0.6), False)
sketch7.addGeometry(Part.Circle(V(63.5, -7.62, 0), V(0, 0, 1), 0.6), False)
sketch7.addGeometry(Part.Circle(V(91.44, -12.7, 0), V(0, 0, 1), 0.6), False)
sketch7.addGeometry(Part.Circle(V(91.44, -7.62, 0), V(0, 0, 1), 0.6), False)
sketch7.addGeometry(Part.Circle(V(78.74, -12.7, 0), V(0, 0, 1), 0.6), False)
sketch7.addGeometry(Part.Circle(V(78.74, -7.62, 0), V(0, 0, 1), 0.6), False)
sketch7.addConstraint(Sketcher.Constraint("Equal", 0, 1))
sketch7.addConstraint(Sketcher.Constraint("Equal", 1, 2))
sketch7.addConstraint(Sketcher.Constraint("Equal", 2, 3))
sketch7.addConstraint(Sketcher.Constraint("Equal", 3, 4))
sketch7.addConstraint(Sketcher.Constraint("Equal", 4, 5))
sketch7.addConstraint(Sketcher.Constraint("Equal", 5, 6))
sketch7.addConstraint(Sketcher.Constraint("Equal", 6, 7))
sketch7.addConstraint(Sketcher.Constraint("Equal", 7, 8))
sketch7.addConstraint(Sketcher.Constraint("Equal", 8, 9))
sketch7.addConstraint(Sketcher.Constraint("Equal", 9, 10))
sketch7.addConstraint(Sketcher.Constraint("Equal", 10, 11))
sketch7.addConstraint(Sketcher.Constraint("Equal", 11, 12))
sketch7.addConstraint(Sketcher.Constraint("Equal", 12, 13))
sketch7.addConstraint(Sketcher.Constraint("Equal", 13, 14))
sketch7.addConstraint(Sketcher.Constraint("Equal", 14, 15))
sketch7.addConstraint(Sketcher.Constraint("Equal", 15, 16))
sketch7.addConstraint(Sketcher.Constraint("Equal", 16, 17))
sketch7.addConstraint(Sketcher.Constraint("Equal", 17, 18))
sketch7.addConstraint(Sketcher.Constraint("Equal", 18, 19))
sketch7.addConstraint(Sketcher.Constraint("Equal", 19, 20))
sketch7.addConstraint(Sketcher.Constraint("Equal", 20, 21))
sketch7.addConstraint(Sketcher.Constraint("Equal", 21, 22))
sketch7.addConstraint(Sketcher.Constraint("Equal", 22, 23))
sketch7.addConstraint(Sketcher.Constraint("Horizontal", 0, 3, 2, 3))
sketch7.addConstraint(Sketcher.Constraint("Horizontal", 1, 3, 3, 3))
sketch7.addConstraint(Sketcher.Constraint("Horizontal", 2, 3, 4, 3))
sketch7.addConstraint(Sketcher.Constraint("Horizontal", 3, 3, 5, 3))
sketch7.addConstraint(Sketcher.Constraint("Horizontal", 4, 3, 6, 3))
sketch7.addConstraint(Sketcher.Constraint("Horizontal", 5, 3, 7, 3))
sketch7.addConstraint(Sketcher.Constraint("Horizontal", 6, 3, 8, 3))
sketch7.addConstraint(Sketcher.Constraint("Horizontal", 7, 3, 9, 3))
sketch7.addConstraint(Sketcher.Constraint("Horizontal", 8, 3, 10, 3))
sketch7.addConstraint(Sketcher.Constraint("Horizontal", 9, 3, 11, 3))
sketch7.addConstraint(Sketcher.Constraint("Horizontal", 10, 3, 12, 3))
sketch7.addConstraint(Sketcher.Constraint("Horizontal", 11, 3, 13, 3))
sketch7.addConstraint(Sketcher.Constraint("Horizontal", 12, 3, 14, 3))
sketch7.addConstraint(Sketcher.Constraint("Horizontal", 13, 3, 15, 3))
sketch7.addConstraint(Sketcher.Constraint("Horizontal", 14, 3, 16, 3))
sketch7.addConstraint(Sketcher.Constraint("Horizontal", 15, 3, 17, 3))
sketch7.addConstraint(Sketcher.Constraint("Horizontal", 16, 3, 18, 3))
sketch7.addConstraint(Sketcher.Constraint("Horizontal", 17, 3, 19, 3))
sketch7.addConstraint(Sketcher.Constraint("Horizontal", 18, 3, 20, 3))
sketch7.addConstraint(Sketcher.Constraint("Horizontal", 19, 3, 21, 3))
sketch7.addConstraint(Sketcher.Constraint("Horizontal", 20, 3, 22, 3))
sketch7.addConstraint(Sketcher.Constraint("Horizontal", 21, 3, 23, 3))
sketch7.addConstraint(Sketcher.Constraint("Vertical", 0, 3, 1, 3))
sketch7.addConstraint(Sketcher.Constraint("Vertical", 2, 3, 3, 3))
sketch7.addConstraint(Sketcher.Constraint("Vertical", 4, 3, 5, 3))
sketch7.addConstraint(Sketcher.Constraint("Vertical", 6, 3, 7, 3))
sketch7.addConstraint(Sketcher.Constraint("Vertical", 8, 3, 9, 3))
sketch7.addConstraint(Sketcher.Constraint("Vertical", 10, 3, 11, 3))
sketch7.addConstraint(Sketcher.Constraint("Vertical", 12, 3, 13, 3))
sketch7.addConstraint(Sketcher.Constraint("Vertical", 14, 3, 15, 3))
sketch7.addConstraint(Sketcher.Constraint("Vertical", 16, 3, 17, 3))
sketch7.addConstraint(Sketcher.Constraint("Vertical", 18, 3, 19, 3))
sketch7.addConstraint(Sketcher.Constraint("Vertical", 20, 3, 21, 3))
sketch7.addConstraint(Sketcher.Constraint("Vertical", 22, 3, 23, 3))
sketch7.addConstraint(Sketcher.Constraint("Diameter", 0, 1.2))
sketch7.addConstraint(Sketcher.Constraint("DistanceY", 0, 3, -1, 1, 12.7))
sketch7.addConstraint(Sketcher.Constraint("DistanceX", -1, 1, 16, 3, 76.2))
sketch7.addConstraint(Sketcher.Constraint("DistanceX", -1, 1, 18, 3, 63.5))
sketch7.addConstraint(Sketcher.Constraint("DistanceX", 2, 3, 0, 3, 12.7))
sketch7.addConstraint(Sketcher.Constraint("DistanceX", 6, 3, 4, 3, 12.7))
sketch7.addConstraint(Sketcher.Constraint("DistanceX", 10, 3, 8, 3, 12.7))
sketch7.addConstraint(Sketcher.Constraint("DistanceX", 14, 3, 12, 3, 12.7))
sketch7.addConstraint(Sketcher.Constraint("DistanceX", 22, 3, 20, 3, 12.7))
sketch7.addConstraint(Sketcher.Constraint("DistanceX", -1, 1, 0, 3, 15.24))
sketch7.addConstraint(Sketcher.Constraint("DistanceY", 1, 3, -1, 1, 7.62))
sketch7.addConstraint(Sketcher.Constraint("DistanceX", -1, 1, 4, 3, 30.48))
sketch7.addConstraint(Sketcher.Constraint("DistanceX", -1, 1, 8, 3, 45.72))
sketch7.addConstraint(Sketcher.Constraint("DistanceX", -1, 1, 12, 3, 60.96))
sketch7.addConstraint(Sketcher.Constraint("DistanceX", -1, 1, 20, 3, 91.44))
pocket6 = body.newObject("PartDesign::Pocket", "Pocket005")
pocket6.Profile = sketch7
pocket6.Type = "ThroughAll"
pocket6.Reversed = True

doc.recompute()
